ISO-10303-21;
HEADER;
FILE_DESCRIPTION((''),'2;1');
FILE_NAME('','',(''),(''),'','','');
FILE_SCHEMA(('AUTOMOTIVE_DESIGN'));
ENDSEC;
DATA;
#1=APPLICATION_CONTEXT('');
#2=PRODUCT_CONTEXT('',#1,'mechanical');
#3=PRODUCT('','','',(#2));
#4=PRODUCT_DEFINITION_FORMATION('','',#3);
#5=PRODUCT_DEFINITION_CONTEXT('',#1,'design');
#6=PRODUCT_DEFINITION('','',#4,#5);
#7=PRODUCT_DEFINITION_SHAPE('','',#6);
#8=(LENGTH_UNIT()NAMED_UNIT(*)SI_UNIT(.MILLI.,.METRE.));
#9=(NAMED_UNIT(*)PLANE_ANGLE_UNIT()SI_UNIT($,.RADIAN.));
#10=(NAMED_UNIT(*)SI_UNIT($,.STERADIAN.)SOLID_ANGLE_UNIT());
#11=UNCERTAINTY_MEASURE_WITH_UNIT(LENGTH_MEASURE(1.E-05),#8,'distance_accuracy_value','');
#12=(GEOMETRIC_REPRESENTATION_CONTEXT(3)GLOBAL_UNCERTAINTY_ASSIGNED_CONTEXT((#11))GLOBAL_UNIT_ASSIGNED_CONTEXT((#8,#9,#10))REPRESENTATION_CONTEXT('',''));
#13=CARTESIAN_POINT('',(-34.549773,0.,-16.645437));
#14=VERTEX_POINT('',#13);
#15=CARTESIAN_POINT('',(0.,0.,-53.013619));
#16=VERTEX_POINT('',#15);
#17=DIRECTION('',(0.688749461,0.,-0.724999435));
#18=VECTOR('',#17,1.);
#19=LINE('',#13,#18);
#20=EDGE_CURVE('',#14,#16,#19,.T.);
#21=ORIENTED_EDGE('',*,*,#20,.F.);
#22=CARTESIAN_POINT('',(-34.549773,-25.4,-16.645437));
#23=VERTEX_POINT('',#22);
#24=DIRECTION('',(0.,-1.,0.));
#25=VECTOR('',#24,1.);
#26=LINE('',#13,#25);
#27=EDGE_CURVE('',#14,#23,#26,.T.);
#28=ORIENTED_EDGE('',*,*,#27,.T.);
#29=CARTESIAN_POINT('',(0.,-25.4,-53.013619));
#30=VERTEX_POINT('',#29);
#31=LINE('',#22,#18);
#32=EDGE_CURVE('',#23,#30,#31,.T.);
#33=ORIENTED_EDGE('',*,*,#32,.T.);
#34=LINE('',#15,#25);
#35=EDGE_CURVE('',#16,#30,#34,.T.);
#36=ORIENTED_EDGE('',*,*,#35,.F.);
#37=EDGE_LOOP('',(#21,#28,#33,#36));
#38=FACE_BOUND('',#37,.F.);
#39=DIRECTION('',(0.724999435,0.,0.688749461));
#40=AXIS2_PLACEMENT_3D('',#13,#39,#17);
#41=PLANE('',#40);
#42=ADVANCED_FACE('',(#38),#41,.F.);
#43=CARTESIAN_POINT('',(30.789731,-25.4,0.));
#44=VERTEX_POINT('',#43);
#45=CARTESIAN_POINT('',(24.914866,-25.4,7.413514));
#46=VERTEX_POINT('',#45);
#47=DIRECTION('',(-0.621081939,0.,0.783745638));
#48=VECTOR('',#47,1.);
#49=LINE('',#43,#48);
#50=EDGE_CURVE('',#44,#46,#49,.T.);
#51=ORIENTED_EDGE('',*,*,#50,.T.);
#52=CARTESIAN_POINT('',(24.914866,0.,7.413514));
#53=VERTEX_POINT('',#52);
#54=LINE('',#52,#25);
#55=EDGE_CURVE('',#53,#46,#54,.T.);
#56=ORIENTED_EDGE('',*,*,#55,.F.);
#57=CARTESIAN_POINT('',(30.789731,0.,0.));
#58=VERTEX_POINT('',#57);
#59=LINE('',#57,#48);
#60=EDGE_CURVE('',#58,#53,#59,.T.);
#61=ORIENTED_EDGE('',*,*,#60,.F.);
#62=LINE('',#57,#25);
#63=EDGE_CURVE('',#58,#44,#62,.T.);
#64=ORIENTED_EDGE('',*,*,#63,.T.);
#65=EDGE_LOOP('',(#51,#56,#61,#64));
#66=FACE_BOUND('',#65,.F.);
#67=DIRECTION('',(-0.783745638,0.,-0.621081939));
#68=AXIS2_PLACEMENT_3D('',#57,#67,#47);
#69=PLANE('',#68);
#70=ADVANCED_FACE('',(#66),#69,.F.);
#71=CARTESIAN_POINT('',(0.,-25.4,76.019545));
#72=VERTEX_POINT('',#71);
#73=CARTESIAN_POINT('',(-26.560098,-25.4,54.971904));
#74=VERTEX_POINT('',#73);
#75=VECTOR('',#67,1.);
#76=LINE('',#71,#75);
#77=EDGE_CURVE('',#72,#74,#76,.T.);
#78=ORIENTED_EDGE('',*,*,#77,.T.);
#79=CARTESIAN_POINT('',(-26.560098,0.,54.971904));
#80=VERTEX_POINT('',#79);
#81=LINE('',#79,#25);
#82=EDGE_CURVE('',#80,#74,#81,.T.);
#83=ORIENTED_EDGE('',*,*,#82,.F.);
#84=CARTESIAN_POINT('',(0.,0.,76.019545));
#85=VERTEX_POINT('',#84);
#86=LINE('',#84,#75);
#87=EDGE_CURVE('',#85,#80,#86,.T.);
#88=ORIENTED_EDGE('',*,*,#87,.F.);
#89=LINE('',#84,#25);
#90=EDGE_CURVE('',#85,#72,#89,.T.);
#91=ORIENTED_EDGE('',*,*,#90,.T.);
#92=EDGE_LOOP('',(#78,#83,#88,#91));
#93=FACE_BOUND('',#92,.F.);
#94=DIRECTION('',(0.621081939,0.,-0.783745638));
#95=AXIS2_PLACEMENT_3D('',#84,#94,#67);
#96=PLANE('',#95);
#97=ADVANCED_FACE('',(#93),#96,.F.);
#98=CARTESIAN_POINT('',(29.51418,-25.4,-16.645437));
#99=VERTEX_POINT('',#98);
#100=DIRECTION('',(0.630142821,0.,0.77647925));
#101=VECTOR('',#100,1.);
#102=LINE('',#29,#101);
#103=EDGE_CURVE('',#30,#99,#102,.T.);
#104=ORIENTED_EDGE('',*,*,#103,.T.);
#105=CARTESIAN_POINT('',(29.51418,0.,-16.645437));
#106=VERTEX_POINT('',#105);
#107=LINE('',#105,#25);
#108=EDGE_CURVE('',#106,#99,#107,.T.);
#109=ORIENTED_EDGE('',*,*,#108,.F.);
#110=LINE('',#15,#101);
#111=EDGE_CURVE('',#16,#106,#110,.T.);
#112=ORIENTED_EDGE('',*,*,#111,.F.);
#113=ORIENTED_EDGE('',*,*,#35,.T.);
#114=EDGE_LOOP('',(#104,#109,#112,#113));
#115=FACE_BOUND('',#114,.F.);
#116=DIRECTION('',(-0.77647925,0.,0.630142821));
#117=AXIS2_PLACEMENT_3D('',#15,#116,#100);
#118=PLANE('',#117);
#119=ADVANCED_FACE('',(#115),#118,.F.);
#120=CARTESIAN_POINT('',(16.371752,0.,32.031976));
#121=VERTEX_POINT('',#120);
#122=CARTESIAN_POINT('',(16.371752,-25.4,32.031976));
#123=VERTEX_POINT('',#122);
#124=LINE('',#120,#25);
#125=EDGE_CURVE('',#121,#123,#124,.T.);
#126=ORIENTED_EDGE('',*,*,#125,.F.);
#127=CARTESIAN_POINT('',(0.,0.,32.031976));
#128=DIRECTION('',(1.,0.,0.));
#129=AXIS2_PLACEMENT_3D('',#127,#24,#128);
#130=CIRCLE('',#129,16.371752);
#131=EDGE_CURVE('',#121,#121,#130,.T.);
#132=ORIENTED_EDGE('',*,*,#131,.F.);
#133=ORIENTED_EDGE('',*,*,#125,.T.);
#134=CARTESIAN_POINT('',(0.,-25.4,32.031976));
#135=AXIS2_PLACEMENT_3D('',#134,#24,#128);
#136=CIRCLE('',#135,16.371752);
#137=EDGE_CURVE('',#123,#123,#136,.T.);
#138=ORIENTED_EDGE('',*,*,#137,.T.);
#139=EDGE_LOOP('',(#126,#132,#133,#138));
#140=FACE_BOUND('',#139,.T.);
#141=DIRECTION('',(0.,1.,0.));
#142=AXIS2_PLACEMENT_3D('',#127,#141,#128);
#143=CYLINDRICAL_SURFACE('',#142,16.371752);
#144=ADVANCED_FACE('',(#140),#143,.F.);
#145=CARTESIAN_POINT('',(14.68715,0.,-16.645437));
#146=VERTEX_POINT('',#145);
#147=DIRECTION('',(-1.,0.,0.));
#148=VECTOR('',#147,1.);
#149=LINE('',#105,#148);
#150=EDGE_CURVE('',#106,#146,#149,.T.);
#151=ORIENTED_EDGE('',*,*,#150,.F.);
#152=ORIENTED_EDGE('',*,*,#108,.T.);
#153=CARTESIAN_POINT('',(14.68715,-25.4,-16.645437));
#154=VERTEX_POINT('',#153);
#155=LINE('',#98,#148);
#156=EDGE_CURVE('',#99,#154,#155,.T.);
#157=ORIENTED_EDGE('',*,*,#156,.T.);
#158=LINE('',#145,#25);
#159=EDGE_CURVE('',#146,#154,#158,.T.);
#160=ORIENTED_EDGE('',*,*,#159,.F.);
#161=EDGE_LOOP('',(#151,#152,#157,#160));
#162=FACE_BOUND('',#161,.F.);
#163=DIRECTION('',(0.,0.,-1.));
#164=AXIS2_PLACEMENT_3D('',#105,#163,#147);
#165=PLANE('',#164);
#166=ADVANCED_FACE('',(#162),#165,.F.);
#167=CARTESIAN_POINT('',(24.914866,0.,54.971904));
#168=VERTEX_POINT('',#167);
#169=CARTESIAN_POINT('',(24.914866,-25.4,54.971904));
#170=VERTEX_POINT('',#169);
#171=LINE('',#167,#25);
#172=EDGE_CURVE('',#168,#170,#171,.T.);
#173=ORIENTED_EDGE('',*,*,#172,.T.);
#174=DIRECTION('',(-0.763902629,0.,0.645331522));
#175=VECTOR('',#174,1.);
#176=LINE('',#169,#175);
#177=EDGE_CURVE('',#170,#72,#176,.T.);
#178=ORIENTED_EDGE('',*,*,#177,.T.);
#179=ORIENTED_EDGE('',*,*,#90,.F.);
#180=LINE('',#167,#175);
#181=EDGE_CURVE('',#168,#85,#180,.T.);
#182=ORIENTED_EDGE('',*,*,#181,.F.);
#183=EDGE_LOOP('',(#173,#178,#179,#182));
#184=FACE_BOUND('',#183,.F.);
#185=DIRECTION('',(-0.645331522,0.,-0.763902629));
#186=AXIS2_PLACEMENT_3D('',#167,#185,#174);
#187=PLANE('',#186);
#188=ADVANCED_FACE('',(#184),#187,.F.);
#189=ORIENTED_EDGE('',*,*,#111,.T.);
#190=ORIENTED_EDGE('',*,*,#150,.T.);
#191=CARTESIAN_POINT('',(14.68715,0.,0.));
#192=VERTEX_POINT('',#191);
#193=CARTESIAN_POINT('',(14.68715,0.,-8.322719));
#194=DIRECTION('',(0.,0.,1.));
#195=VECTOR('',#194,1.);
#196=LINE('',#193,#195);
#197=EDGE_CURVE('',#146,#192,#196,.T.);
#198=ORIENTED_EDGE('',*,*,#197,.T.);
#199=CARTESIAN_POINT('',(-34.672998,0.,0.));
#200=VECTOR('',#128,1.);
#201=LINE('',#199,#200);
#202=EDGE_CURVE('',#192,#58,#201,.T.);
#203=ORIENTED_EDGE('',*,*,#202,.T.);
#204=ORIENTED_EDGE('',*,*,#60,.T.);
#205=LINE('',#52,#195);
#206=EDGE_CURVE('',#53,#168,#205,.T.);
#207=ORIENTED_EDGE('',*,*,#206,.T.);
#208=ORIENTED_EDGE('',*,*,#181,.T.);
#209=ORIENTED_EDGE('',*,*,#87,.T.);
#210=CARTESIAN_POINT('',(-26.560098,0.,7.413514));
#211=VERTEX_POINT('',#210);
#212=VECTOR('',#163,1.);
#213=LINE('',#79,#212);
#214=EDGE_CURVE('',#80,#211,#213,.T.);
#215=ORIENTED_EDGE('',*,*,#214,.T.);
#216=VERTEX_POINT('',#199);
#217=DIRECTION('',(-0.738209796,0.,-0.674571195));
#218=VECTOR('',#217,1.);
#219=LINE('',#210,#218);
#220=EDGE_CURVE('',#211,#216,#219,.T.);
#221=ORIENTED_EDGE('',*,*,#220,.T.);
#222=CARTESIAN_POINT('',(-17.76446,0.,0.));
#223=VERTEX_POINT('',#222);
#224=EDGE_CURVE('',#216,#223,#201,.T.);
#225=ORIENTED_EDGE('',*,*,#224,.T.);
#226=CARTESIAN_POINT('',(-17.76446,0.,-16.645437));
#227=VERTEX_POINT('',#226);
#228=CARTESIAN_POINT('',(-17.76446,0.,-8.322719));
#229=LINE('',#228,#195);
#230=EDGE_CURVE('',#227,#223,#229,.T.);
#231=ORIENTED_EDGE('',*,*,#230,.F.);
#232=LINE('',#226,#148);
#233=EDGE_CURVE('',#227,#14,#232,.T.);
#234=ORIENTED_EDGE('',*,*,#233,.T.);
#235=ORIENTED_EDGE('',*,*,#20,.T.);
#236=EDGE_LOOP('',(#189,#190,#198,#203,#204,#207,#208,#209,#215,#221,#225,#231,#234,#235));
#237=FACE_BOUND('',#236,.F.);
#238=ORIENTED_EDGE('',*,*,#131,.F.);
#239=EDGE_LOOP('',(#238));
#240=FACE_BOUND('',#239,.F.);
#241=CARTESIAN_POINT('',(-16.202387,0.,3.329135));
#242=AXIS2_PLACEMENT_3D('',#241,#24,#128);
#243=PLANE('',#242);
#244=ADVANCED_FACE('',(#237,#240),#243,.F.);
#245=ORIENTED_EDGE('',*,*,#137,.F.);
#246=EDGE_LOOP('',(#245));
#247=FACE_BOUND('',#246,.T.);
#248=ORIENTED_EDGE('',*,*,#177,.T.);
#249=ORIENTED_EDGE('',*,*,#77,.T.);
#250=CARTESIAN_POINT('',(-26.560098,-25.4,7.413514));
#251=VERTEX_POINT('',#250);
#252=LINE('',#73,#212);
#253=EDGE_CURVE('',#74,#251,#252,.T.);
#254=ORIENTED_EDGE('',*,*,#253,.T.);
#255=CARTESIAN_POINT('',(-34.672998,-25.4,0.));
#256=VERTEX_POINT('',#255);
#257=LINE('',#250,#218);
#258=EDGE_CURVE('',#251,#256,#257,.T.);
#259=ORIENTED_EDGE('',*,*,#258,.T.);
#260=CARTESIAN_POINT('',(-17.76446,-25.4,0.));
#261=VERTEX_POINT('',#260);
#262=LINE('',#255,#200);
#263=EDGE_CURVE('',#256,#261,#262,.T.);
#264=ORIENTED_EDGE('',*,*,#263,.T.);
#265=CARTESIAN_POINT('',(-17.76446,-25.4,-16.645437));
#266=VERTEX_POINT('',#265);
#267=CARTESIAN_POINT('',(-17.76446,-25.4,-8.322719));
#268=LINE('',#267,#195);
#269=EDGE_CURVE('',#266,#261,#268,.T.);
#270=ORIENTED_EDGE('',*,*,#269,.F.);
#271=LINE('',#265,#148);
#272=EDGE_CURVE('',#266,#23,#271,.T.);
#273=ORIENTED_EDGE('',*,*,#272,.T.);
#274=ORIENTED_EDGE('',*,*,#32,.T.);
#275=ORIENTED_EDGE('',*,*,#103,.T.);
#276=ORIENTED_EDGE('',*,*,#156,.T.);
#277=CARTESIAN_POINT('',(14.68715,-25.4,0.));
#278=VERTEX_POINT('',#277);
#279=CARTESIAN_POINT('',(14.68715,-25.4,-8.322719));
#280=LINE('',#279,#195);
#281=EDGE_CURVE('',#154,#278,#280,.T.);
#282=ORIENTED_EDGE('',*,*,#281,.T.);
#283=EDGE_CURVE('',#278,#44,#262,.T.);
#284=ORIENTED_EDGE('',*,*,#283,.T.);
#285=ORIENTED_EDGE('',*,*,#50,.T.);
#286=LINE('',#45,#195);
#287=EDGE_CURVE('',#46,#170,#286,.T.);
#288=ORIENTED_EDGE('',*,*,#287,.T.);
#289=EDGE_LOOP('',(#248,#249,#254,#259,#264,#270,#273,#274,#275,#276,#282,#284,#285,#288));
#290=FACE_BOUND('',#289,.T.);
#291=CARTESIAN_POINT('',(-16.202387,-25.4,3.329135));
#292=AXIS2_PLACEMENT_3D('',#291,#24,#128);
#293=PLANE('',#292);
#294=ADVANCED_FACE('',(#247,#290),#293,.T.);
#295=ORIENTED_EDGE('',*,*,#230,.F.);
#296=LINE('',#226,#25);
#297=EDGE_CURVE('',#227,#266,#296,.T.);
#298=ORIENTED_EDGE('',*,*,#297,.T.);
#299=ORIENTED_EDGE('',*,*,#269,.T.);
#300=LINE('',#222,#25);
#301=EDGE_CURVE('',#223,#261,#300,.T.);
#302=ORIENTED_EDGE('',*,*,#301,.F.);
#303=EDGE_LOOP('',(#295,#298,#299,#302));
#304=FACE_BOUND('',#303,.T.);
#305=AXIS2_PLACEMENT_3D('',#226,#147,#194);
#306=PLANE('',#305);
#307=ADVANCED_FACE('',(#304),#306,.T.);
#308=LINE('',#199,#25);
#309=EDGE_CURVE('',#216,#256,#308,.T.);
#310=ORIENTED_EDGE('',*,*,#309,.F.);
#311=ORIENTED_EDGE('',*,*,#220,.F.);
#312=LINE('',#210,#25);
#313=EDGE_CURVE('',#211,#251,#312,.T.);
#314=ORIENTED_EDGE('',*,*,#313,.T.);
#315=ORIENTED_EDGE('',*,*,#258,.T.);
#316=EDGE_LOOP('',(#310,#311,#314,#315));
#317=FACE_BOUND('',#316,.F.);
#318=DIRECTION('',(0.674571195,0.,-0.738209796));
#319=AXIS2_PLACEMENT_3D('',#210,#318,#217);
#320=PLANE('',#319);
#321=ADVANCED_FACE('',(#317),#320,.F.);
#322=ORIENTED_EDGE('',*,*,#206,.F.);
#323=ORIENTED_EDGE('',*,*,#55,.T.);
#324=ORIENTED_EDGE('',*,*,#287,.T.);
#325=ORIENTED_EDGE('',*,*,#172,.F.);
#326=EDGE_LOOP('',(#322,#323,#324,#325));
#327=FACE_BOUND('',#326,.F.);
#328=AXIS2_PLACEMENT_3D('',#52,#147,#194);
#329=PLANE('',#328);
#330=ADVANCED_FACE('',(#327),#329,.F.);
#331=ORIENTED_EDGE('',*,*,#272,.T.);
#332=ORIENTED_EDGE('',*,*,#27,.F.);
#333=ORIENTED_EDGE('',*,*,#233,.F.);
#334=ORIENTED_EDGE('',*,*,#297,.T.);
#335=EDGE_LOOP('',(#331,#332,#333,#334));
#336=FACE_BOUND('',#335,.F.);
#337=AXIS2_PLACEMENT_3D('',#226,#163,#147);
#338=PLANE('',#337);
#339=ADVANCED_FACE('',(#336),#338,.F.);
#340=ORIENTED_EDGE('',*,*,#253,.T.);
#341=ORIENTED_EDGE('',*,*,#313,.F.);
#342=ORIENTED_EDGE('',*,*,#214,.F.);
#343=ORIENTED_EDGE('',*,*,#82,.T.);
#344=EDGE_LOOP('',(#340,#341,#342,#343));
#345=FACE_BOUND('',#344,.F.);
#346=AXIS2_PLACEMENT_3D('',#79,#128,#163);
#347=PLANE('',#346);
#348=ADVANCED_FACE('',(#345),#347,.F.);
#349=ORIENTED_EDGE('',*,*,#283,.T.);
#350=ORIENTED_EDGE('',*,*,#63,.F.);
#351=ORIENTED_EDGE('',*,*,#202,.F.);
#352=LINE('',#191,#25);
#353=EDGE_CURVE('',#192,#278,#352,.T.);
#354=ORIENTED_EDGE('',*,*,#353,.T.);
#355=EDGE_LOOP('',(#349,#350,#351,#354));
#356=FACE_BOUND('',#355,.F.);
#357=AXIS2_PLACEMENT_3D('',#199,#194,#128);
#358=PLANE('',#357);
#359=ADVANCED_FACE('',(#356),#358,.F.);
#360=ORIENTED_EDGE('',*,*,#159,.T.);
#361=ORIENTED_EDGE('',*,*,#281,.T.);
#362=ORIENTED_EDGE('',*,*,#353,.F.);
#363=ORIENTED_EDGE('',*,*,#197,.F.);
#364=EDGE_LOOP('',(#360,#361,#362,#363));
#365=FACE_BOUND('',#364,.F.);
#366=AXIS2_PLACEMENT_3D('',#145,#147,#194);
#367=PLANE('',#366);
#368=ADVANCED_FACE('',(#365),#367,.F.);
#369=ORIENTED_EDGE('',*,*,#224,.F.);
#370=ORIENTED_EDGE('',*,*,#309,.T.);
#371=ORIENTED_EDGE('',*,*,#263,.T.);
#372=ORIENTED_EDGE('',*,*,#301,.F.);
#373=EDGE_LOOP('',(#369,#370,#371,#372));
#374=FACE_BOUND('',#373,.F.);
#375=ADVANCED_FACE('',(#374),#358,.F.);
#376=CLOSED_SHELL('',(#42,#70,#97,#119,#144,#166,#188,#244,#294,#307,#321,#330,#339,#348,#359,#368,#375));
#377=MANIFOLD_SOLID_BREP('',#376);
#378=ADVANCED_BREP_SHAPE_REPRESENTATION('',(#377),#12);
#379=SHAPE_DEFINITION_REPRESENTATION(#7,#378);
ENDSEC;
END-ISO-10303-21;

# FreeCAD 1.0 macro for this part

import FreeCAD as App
import Part
import Sketcher
Q = App.Units.Quantity


def add_polygon(sketch, points):
    """Adds a closed chain of lines whose ends are joined by coincident constraints."""
    first, n = sketch.GeometryCount, len(points)
    for a, b in zip(points, points[1:] + points[:1]):
        sketch.addGeometry(Part.LineSegment(App.Vector(*a, 0), App.Vector(*b, 0)), False)
    for i in range(n):
        sketch.addConstraint(Sketcher.Constraint("Coincident", first + i, 2, first + (i + 1) % n, 1))

doc = App.newDocument("Part")
body = doc.addObject("PartDesign::Body", "Body")

sketch1 = body.newObject("Sketcher::SketchObject", "Sketch")
sketch1.AttachmentSupport = (doc.getObject("XZ_Plane"), [""])
sketch1.MapMode = "FlatFace"
add_polygon(sketch1, [(-35, 0), (31, 0), (25, 7), (25, 55), (0, 76), (-27, 55), (-27, 7)])
sketch1.addGeometry(Part.Circle(App.Vector(0, 32, 0), App.Vector(0, 0, 1), 16), False)
sketch1.addConstraint([
    Sketcher.Constraint("Horizontal", 0),
    Sketcher.Constraint("Vertical", 2),
    Sketcher.Constraint("Vertical", 5),
    Sketcher.Constraint("PointOnObject", 7, 3, -2),
    Sketcher.Constraint("PointOnObject", 0, 2, -1),
    Sketcher.Constraint("PointOnObject", 3, 2, -2),
    Sketcher.Constraint("Perpendicular", 1, 4),
    Sketcher.Constraint("Horizontal", 2, 2, 4, 2),
    Sketcher.Constraint("Horizontal", 1, 2, 5, 2),
    Sketcher.Constraint("Diameter", 7, 32.743504),
    Sketcher.Constraint("DistanceX", 0, 1, 0, 2, 65.462729),
    Sketcher.Constraint("DistanceY", 2, 1, 2, 2, 47.55839),
    Sketcher.Constraint("DistanceX", 6, 2, 5, 2, 8.1129),
    Sketcher.Constraint("Distance", 1, 9.459082),
    Sketcher.Constraint("Distance", 3, 32.615238),
    Sketcher.Constraint("Distance", 4, 33.888671),
    Sketcher.Constraint("DistanceY", 1, 2, 7, 3, 24.618462),
])
pad1 = body.newObject("PartDesign::Pad", "Pad")
pad1.Profile = sketch1
pad1.Length = Q("1 in")

sketch2 = body.newObject("Sketcher::SketchObject", "Sketch001")
sketch2.AttachmentSupport = (doc.getObject("XZ_Plane"), [""])
sketch2.MapMode = "FlatFace"
add_polygon(sketch2, [(-18, 0), (-18, -17), (-35, -17), (0, -53), (30, -17), (15, -17), (15, 0)])
sketch2.addConstraint([
    Sketcher.Constraint("Vertical", 0),
    Sketcher.Constraint("Horizontal", 1),
    Sketcher.Constraint("Horizontal", 4),
    Sketcher.Constraint("Vertical", 5),
    Sketcher.Constraint("Horizontal", 6),
    Sketcher.Constraint("PointOnObject", 2, 2, -2),
    Sketcher.Constraint("PointOnObject", 5, 2, -1),
    Sketcher.Constraint("Horizontal", 1, 2, 3, 2),
    Sketcher.Constraint("DistanceX", 4, 2, 4, 1, 14.827031),
    Sketcher.Constraint("DistanceX", 6, 2, 6, 1, 32.45161),
    Sketcher.Constraint("Distance", 2, 50.163049),
    Sketcher.Constraint("DistanceX", 1, 2, 1, 1, 16.785312),
    Sketcher.Constraint("DistanceY", 0, 2, 0, 1, 16.645437),
    Sketcher.Constraint("DistanceX", 0, 2, -1, 1, 17.76446),
])
pad2 = body.newObject("PartDesign::Pad", "Pad001")
pad2.Profile = sketch2
pad2.Length = Q("1 in")

doc.recompute()
